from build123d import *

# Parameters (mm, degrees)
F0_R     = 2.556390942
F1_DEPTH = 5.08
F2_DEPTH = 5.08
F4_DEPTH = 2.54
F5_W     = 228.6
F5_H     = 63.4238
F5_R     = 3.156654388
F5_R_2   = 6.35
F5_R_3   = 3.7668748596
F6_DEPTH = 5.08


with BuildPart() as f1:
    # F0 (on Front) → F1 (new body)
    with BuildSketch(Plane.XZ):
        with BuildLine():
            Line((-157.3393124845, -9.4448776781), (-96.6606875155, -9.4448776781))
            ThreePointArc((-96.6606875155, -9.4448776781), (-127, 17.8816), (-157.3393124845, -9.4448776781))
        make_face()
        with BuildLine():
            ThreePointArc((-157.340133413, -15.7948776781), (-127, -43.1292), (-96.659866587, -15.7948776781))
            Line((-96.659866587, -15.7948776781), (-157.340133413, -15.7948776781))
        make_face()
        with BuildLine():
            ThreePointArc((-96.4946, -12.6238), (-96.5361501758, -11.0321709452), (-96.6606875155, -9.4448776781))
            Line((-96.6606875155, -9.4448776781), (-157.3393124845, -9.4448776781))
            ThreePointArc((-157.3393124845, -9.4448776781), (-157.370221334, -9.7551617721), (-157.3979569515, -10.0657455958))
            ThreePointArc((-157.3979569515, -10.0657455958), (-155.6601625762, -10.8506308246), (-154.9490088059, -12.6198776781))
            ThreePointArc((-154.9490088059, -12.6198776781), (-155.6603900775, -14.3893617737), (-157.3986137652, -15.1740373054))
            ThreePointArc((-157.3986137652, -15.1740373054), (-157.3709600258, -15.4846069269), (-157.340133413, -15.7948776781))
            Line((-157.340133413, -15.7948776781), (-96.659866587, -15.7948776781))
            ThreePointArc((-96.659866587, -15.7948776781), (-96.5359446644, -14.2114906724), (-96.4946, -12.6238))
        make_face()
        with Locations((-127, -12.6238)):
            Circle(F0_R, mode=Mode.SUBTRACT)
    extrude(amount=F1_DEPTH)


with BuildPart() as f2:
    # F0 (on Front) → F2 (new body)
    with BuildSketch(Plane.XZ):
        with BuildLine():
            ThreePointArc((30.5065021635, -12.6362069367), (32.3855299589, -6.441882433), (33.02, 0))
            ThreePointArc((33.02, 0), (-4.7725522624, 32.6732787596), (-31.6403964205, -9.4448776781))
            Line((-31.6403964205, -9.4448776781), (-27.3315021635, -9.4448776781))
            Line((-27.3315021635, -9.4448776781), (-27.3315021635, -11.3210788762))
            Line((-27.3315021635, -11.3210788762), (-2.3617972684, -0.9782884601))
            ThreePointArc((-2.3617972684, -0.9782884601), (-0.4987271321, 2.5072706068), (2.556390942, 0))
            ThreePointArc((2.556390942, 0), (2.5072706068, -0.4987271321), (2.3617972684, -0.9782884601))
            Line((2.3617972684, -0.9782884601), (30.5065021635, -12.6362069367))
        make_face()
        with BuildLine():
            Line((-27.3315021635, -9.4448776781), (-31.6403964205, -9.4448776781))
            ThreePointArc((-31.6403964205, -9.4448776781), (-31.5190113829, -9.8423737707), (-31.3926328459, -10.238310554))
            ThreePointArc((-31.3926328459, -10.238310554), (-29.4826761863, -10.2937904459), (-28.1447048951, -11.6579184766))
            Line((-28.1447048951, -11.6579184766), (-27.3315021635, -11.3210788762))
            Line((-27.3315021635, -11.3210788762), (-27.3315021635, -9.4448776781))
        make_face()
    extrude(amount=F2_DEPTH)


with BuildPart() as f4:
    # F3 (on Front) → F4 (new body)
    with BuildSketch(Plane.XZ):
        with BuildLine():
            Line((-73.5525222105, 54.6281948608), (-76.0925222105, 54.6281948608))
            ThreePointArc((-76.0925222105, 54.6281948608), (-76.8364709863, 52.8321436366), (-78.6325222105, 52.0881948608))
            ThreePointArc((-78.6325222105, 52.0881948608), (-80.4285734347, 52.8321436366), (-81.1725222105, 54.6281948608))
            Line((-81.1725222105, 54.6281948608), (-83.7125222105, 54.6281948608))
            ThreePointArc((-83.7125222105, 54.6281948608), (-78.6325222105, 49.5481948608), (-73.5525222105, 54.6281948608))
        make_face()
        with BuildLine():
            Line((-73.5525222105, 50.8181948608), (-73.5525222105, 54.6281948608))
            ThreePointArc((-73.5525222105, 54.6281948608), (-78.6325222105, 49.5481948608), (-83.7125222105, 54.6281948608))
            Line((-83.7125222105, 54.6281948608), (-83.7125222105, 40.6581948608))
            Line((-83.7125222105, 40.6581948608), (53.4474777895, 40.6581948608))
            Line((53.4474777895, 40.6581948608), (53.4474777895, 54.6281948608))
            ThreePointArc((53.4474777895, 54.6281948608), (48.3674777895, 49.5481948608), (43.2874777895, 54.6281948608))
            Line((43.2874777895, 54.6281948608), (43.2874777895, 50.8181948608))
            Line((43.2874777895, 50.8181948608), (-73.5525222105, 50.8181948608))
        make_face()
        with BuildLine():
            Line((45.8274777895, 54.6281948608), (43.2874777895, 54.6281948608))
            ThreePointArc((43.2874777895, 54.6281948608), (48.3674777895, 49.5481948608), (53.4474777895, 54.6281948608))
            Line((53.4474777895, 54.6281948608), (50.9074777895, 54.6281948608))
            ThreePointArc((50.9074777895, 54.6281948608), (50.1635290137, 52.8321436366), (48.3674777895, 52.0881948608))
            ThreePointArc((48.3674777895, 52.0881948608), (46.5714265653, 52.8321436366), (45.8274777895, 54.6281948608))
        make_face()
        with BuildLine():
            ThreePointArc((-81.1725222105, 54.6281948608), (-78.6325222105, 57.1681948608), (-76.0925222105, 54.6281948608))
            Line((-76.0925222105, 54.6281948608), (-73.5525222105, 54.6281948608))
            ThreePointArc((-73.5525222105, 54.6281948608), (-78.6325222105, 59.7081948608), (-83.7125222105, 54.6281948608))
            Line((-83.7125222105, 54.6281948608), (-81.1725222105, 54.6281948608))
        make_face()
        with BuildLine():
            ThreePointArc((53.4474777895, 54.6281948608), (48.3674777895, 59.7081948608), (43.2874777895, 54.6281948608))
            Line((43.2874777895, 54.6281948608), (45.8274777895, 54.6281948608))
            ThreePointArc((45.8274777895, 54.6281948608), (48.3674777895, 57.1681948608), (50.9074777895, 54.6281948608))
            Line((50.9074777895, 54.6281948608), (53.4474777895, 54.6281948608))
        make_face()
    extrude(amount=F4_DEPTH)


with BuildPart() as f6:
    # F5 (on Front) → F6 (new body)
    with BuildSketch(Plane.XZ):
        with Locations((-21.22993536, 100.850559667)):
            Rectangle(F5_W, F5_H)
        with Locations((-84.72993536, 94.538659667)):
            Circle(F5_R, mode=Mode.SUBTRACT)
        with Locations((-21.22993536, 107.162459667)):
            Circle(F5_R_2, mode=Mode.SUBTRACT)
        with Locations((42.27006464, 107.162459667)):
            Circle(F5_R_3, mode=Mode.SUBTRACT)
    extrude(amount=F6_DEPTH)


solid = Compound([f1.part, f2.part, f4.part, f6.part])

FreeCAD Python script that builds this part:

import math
import FreeCAD as App
import Part
import Sketcher
Q = App.Units.Quantity

doc = App.newDocument("Part")
body = doc.addObject("PartDesign::Body", "Body")

sketch1 = body.newObject("Sketcher::SketchObject", "Sketch")
sketch1.AttachmentSupport = (doc.getObject("XZ_Plane"), [""])
sketch1.MapMode = "FlatFace"
sketch1.addGeometry(Part.ArcOfCircle(Part.Circle(App.Vector(-127, -12.6, 0), App.Vector(0, 0, 1), 30.5), math.radians(0), math.radians(5.98)), False)
sketch1.addGeometry(Part.ArcOfCircle(Part.Circle(App.Vector(-127, -12.6, 0), App.Vector(0, 0, 1), 30.5), math.radians(6), math.radians(174)), False)
sketch1.addGeometry(Part.ArcOfCircle(Part.Circle(App.Vector(-127, -12.6, 0), App.Vector(0, 0, 1), 30.5), math.radians(174.02), math.radians(175.19)), False)
sketch1.addGeometry(Part.ArcOfCircle(Part.Circle(App.Vector(-157.5, -12.6, 0), App.Vector(0, 0, 1), 2.6), math.radians(0), math.radians(88)), False)
sketch1.addGeometry(Part.ArcOfCircle(Part.Circle(App.Vector(-157.5, -12.6, 0), App.Vector(0, 0, 1), 2.6), math.radians(-88), math.radians(0)), False)
sketch1.addGeometry(Part.ArcOfCircle(Part.Circle(App.Vector(-127, -12.6, 0), App.Vector(0, 0, 1), 30.5), math.radians(-175.2), math.radians(-174.03)), False)
sketch1.addGeometry(Part.ArcOfCircle(Part.Circle(App.Vector(-127, -12.6, 0), App.Vector(0, 0, 1), 30.5), math.radians(-174), math.radians(-6)), False)
sketch1.addGeometry(Part.ArcOfCircle(Part.Circle(App.Vector(-127, -12.6, 0), App.Vector(0, 0, 1), 30.5), math.radians(-5.97), math.radians(0)), False)
sketch1.addGeometry(Part.Circle(App.Vector(-127, -12.6, 0), App.Vector(0, 0, 1), 2.6), False)
sketch1.addConstraint(Sketcher.Constraint("Tangent", 0, 2, 1, 1))
sketch1.addConstraint(Sketcher.Constraint("Tangent", 1, 2, 2, 1))
sketch1.addConstraint(Sketcher.Constraint("Coincident", 2, 2, 3, 2))
sketch1.addConstraint(Sketcher.Constraint("Tangent", 3, 1, 4, 2))
sketch1.addConstraint(Sketcher.Constraint("Coincident", 4, 1, 5, 1))
sketch1.addConstraint(Sketcher.Constraint("Tangent", 5, 2, 6, 1))
sketch1.addConstraint(Sketcher.Constraint("Tangent", 6, 2, 7, 1))
sketch1.addConstraint(Sketcher.Constraint("Tangent", 7, 2, 0, 1))
sketch1.addConstraint(Sketcher.Constraint("Coincident", 2, 3, 0, 3))
sketch1.addConstraint(Sketcher.Constraint("Coincident", 5, 3, 0, 3))
sketch1.addConstraint(Sketcher.Constraint("Coincident", 8, 3, 0, 3))
sketch1.addConstraint(Sketcher.Constraint("Equal", 3, 4))
sketch1.addConstraint(Sketcher.Constraint("Equal", 2, 5))
sketch1.addConstraint(Sketcher.Constraint("Equal", 4, 8))
sketch1.addConstraint(Sketcher.Constraint("Horizontal", 0, 2, 1, 2))
sketch1.addConstraint(Sketcher.Constraint("Horizontal", 4, 3, 3, 1))
sketch1.addConstraint(Sketcher.Constraint("Horizontal", 5, 2, 6, 2))
sketch1.addConstraint(Sketcher.Constraint("Horizontal", 8, 3, 7, 2))
sketch1.addConstraint(Sketcher.Constraint("DistanceX", 0, 3, -1, 1, Q("5 in")))
sketch1.addConstraint(Sketcher.Constraint("Radius", 0, Q("1.201 in")))
sketch1.addConstraint(Sketcher.Constraint("DistanceY", 6, 2, 0, 2, Q("0.25 in")))
sketch1.addConstraint(Sketcher.Constraint("Diameter", 8, 5.112782))
sketch1.addConstraint(Sketcher.Constraint("DistanceY", 0, 3, -1, 1, Q("0.497 in")))
sketch1.addConstraint(Sketcher.Constraint("DistanceX", 3, 3, -1, 1, Q("6.201 in")))
sketch1.addConstraint(Sketcher.Constraint("DistanceY", 3, 3, 1, 2, Q("0.125 in")))
sketch1.addConstraint(Sketcher.Constraint("DistanceX", 4, 1, 1, 2, 0.059301))
pad1 = body.newObject("PartDesign::Pad", "Pad")
pad1.Profile = sketch1
pad1.Length = Q("0.2 in")
body2 = doc.addObject("PartDesign::Body", "Body001")

sketch2 = body2.newObject("Sketcher::SketchObject", "Sketch001")
sketch2.AttachmentSupport = (doc.getObject("XZ_Plane001"), [""])
sketch2.MapMode = "FlatFace"
sketch2.addGeometry(Part.ArcOfCircle(Part.Circle(App.Vector(0, 0, 0), App.Vector(0, 0, 1), 33), math.radians(-23), math.radians(0)), False)
sketch2.addGeometry(Part.ArcOfCircle(Part.Circle(App.Vector(0, 0, 0), App.Vector(0, 0, 1), 33), math.radians(0), math.radians(197)), False)
sketch2.addGeometry(Part.ArcOfCircle(Part.Circle(App.Vector(0, 0, 0), App.Vector(0, 0, 1), 33), math.radians(-163.38), math.radians(-161.94)), False)
sketch2.addGeometry(Part.ArcOfCircle(Part.Circle(App.Vector(-30.5, -12.6, 0), App.Vector(0, 0, 1), 2.6), math.radians(22), math.radians(110)), False)
sketch2.addGeometry(Part.LineSegment(App.Vector(-28.1, -11.7, 0), App.Vector(-27.3, -11.3, 0)), False)
sketch2.addGeometry(Part.LineSegment(App.Vector(-27.3, -11.3, 0), App.Vector(-2.4, -1, 0)), False)
sketch2.addGeometry(Part.ArcOfCircle(Part.Circle(App.Vector(0, 0, 0), App.Vector(0, 0, 1), 2.6), math.radians(0), math.radians(203)), False)
sketch2.addGeometry(Part.ArcOfCircle(Part.Circle(App.Vector(0, 0, 0), App.Vector(0, 0, 1), 2.6), math.radians(-23), math.radians(0)), False)
sketch2.addGeometry(Part.LineSegment(App.Vector(2.4, -1, 0), App.Vector(30.5, -12.6, 0)), False)
sketch2.addConstraint(Sketcher.Constraint("Tangent", 0, 2, 1, 1))
sketch2.addConstraint(Sketcher.Constraint("Tangent", 1, 2, 2, 1))
sketch2.addConstraint(Sketcher.Constraint("Coincident", 2, 2, 3, 2))
sketch2.addConstraint(Sketcher.Constraint("Coincident", 3, 1, 4, 1))
sketch2.addConstraint(Sketcher.Constraint("Coincident", 4, 2, 5, 1))
sketch2.addConstraint(Sketcher.Constraint("Coincident", 5, 2, 6, 2))
sketch2.addConstraint(Sketcher.Constraint("Tangent", 6, 1, 7, 2))
sketch2.addConstraint(Sketcher.Constraint("Coincident", 7, 1, 8, 1))
sketch2.addConstraint(Sketcher.Constraint("Coincident", 8, 2, 0, 1))
sketch2.addConstraint(Sketcher.Constraint("Coincident", 0, 3, -1, 1))
sketch2.addConstraint(Sketcher.Constraint("Coincident", 2, 3, -1, 1))
sketch2.addConstraint(Sketcher.Constraint("Coincident", 6, 3, -1, 1))
sketch2.addConstraint(Sketcher.Constraint("Equal", 3, 6))
sketch2.addConstraint(Sketcher.Constraint("Equal", 6, 7))
sketch2.addConstraint(Sketcher.Constraint("PointOnObject", 0, 2, -1))
sketch2.addConstraint(Sketcher.Constraint("PointOnObject", 6, 1, -1))
sketch2.addConstraint(Sketcher.Constraint("Parallel", 4, 5))
sketch2.addConstraint(Sketcher.Constraint("Horizontal", 5, 2, 7, 1))
sketch2.addConstraint(Sketcher.Constraint("Horizontal", 3, 3, 8, 2))
sketch2.addConstraint(Sketcher.Constraint("Radius", 0, Q("1.3 in")))
sketch2.addConstraint(Sketcher.Constraint("Angle", 4, Q("22.5 deg")))
sketch2.addConstraint(Sketcher.Constraint("Angle", 8, Q("-22.5 deg")))
sketch2.addConstraint(Sketcher.Constraint("Radius", 3, 2.556391))
sketch2.addConstraint(Sketcher.Constraint("DistanceX", 3, 3, 4, 2, Q("0.125 in")))
sketch2.addConstraint(Sketcher.Constraint("DistanceY", 4, 2, 1, 2, 1.876201))
sketch2.addConstraint(Sketcher.Constraint("DistanceX", 2, 3, 8, 2, 30.506502))
sketch2.addConstraint(Sketcher.Constraint("DistanceY", 2, 2, -1, 1, 10.238311))
pad2 = body2.newObject("PartDesign::Pad", "Pad001")
pad2.Profile = sketch2
pad2.Length = Q("0.2 in")
body3 = doc.addObject("PartDesign::Body", "Body002")

sketch3 = body3.newObject("Sketcher::SketchObject", "Sketch002")
sketch3.AttachmentSupport = (doc.getObject("XZ_Plane002"), [""])
sketch3.MapMode = "FlatFace"
sketch3.addGeometry(Part.LineSegment(App.Vector(-83.7, 54.6, 0), App.Vector(-83.7, 40.7, 0)), False)
sketch3.addGeometry(Part.LineSegment(App.Vector(-83.7, 40.7, 0), App.Vector(53.4, 40.7, 0)), False)
sketch3.addGeometry(Part.LineSegment(App.Vector(53.4, 40.7, 0), App.Vector(53.4, 54.6, 0)), False)
sketch3.addGeometry(Part.ArcOfCircle(Part.Circle(App.Vector(48.4, 54.6, 0), App.Vector(0, 0, 1), 5.1), math.radians(0), math.radians(180)), False)
sketch3.addGeometry(Part.LineSegment(App.Vector(43.3, 54.6, 0), App.Vector(43.3, 50.8, 0)), False)
sketch3.addGeometry(Part.LineSegment(App.Vector(43.3, 50.8, 0), App.Vector(-73.6, 50.8, 0)), False)
sketch3.addGeometry(Part.LineSegment(App.Vector(-73.6, 50.8, 0), App.Vector(-73.6, 54.6, 0)), False)
sketch3.addGeometry(Part.ArcOfCircle(Part.Circle(App.Vector(-78.6, 54.6, 0), App.Vector(0, 0, 1), 5.1), math.radians(0), math.radians(180)), False)
sketch3.addGeometry(Part.ArcOfCircle(Part.Circle(App.Vector(48.4, 54.6, 0), App.Vector(0, 0, 1), 2.5), math.radians(-90), math.radians(0)), False)
sketch3.addGeometry(Part.ArcOfCircle(Part.Circle(App.Vector(48.4, 54.6, 0), App.Vector(0, 0, 1), 2.5), math.radians(180), math.radians(270)), False)
sketch3.addGeometry(Part.ArcOfCircle(Part.Circle(App.Vector(48.4, 54.6, 0), App.Vector(0, 0, 1), 2.5), math.radians(0), math.radians(180)), False)
sketch3.addGeometry(Part.ArcOfCircle(Part.Circle(App.Vector(-78.6, 54.6, 0), App.Vector(0, 0, 1), 2.5), math.radians(-90), math.radians(0)), False)
sketch3.addGeometry(Part.ArcOfCircle(Part.Circle(App.Vector(-78.6, 54.6, 0), App.Vector(0, 0, 1), 2.5), math.radians(180), math.radians(270)), False)
sketch3.addGeometry(Part.ArcOfCircle(Part.Circle(App.Vector(-78.6, 54.6, 0), App.Vector(0, 0, 1), 2.5), math.radians(0), math.radians(180)), False)
sketch3.addConstraint(Sketcher.Constraint("Coincident", 0, 2, 1, 1))
sketch3.addConstraint(Sketcher.Constraint("Coincident", 1, 2, 2, 1))
sketch3.addConstraint(Sketcher.Constraint("Tangent", 2, 2, 3, 1))
sketch3.addConstraint(Sketcher.Constraint("Tangent", 3, 2, 4, 1))
sketch3.addConstraint(Sketcher.Constraint("Coincident", 4, 2, 5, 1))
sketch3.addConstraint(Sketcher.Constraint("Coincident", 5, 2, 6, 1))
sketch3.addConstraint(Sketcher.Constraint("Tangent", 6, 2, 7, 1))
sketch3.addConstraint(Sketcher.Constraint("Tangent", 7, 2, 0, 1))
sketch3.addConstraint(Sketcher.Constraint("Tangent", 8, 1, 9, 2))
sketch3.addConstraint(Sketcher.Constraint("Tangent", 9, 1, 10, 2))
sketch3.addConstraint(Sketcher.Constraint("Tangent", 10, 1, 8, 2))
sketch3.addConstraint(Sketcher.Constraint("Tangent", 11, 1, 12, 2))
sketch3.addConstraint(Sketcher.Constraint("Tangent", 12, 1, 13, 2))
sketch3.addConstraint(Sketcher.Constraint("Tangent", 13, 1, 11, 2))
sketch3.addConstraint(Sketcher.Constraint("Vertical", 0))
sketch3.addConstraint(Sketcher.Constraint("Horizontal", 1))
sketch3.addConstraint(Sketcher.Constraint("Vertical", 2))
sketch3.addConstraint(Sketcher.Constraint("Vertical", 4))
sketch3.addConstraint(Sketcher.Constraint("Horizontal", 5))
sketch3.addConstraint(Sketcher.Constraint("Vertical", 6))
sketch3.addConstraint(Sketcher.Constraint("Coincident", 8, 3, 3, 3))
sketch3.addConstraint(Sketcher.Constraint("Coincident", 11, 3, 7, 3))
sketch3.addConstraint(Sketcher.Constraint("Equal", 3, 7))
sketch3.addConstraint(Sketcher.Constraint("Equal", 10, 11))
sketch3.addConstraint(Sketcher.Constraint("Horizontal", 3, 3, 7, 3))
sketch3.addConstraint(Sketcher.Constraint("Horizontal", 7, 2, 9, 1))
sketch3.addConstraint(Sketcher.Constraint("Horizontal", 9, 1, 10, 1))
sketch3.addConstraint(Sketcher.Constraint("Horizontal", 10, 1, 12, 1))
sketch3.addConstraint(Sketcher.Constraint("Horizontal", 12, 1, 13, 1))
sketch3.addConstraint(Sketcher.Constraint("Vertical", 10, 3, 8, 1))
sketch3.addConstraint(Sketcher.Constraint("Vertical", 13, 3, 11, 1))
sketch3.addConstraint(Sketcher.Constraint("Radius", 3, Q("0.2 in")))
sketch3.addConstraint(Sketcher.Constraint("Radius", 8, Q("0.1 in")))
sketch3.addConstraint(Sketcher.Constraint("DistanceX", 1, 1, 1, 2, Q("5.4 in")))
sketch3.addConstraint(Sketcher.Constraint("DistanceY", 0, 2, 0, 1, Q("0.55 in")))
sketch3.addConstraint(Sketcher.Constraint("DistanceY", 4, 2, 4, 1, Q("0.15 in")))
sketch3.addConstraint(Sketcher.Constraint("DistanceX", -1, 1, 3, 3, 48.367478))
sketch3.addConstraint(Sketcher.Constraint("DistanceY", -1, 1, 3, 3, 54.628195))
pad3 = body3.newObject("PartDesign::Pad", "Pad002")
pad3.Profile = sketch3
pad3.Length = Q("0.1 in")
body4 = doc.addObject("PartDesign::Body", "Body003")

sketch4 = body4.newObject("Sketcher::SketchObject", "Sketch003")
sketch4.AttachmentSupport = (doc.getObject("XZ_Plane003"), [""])
sketch4.MapMode = "FlatFace"
sketch4.addGeometry(Part.LineSegment(App.Vector(-135.5, 132.6, 0), App.Vector(-135.5, 69.1, 0)), False)
sketch4.addGeometry(Part.LineSegment(App.Vector(-135.5, 69.1, 0), App.Vector(93.1, 69.1, 0)), False)
sketch4.addGeometry(Part.LineSegment(App.Vector(93.1, 69.1, 0), App.Vector(93.1, 132.6, 0)), False)
sketch4.addGeometry(Part.LineSegment(App.Vector(93.1, 132.6, 0), App.Vector(-135.5, 132.6, 0)), False)
sketch4.addGeometry(Part.Circle(App.Vector(-84.7, 94.5, 0), App.Vector(0, 0, 1), 3.2), False)
sketch4.addGeometry(Part.Circle(App.Vector(-21.2, 107.2, 0), App.Vector(0, 0, 1), 6.3), False)
sketch4.addGeometry(Part.Circle(App.Vector(42.3, 107.2, 0), App.Vector(0, 0, 1), 3.8), False)
sketch4.addConstraint(Sketcher.Constraint("Coincident", 0, 2, 1, 1))
sketch4.addConstraint(Sketcher.Constraint("Coincident", 1, 2, 2, 1))
sketch4.addConstraint(Sketcher.Constraint("Coincident", 2, 2, 3, 1))
sketch4.addConstraint(Sketcher.Constraint("Coincident", 3, 2, 0, 1))
sketch4.addConstraint(Sketcher.Constraint("Vertical", 0))
sketch4.addConstraint(Sketcher.Constraint("Horizontal", 1))
sketch4.addConstraint(Sketcher.Constraint("Vertical", 2))
sketch4.addConstraint(Sketcher.Constraint("Horizontal", 3))
sketch4.addConstraint(Sketcher.Constraint("Horizontal", 5, 3, 6, 3))
sketch4.addConstraint(Sketcher.Constraint("Diameter", 5, Q("0.5 in")))
sketch4.addConstraint(Sketcher.Constraint("DistanceX", 1, 1, 1, 2, Q("9 in")))
sketch4.addConstraint(Sketcher.Constraint("DistanceX", 4, 3, 6, 3, Q("5 in")))
sketch4.addConstraint(Sketcher.Constraint("DistanceX", 0, 2, 4, 3, Q("2 in")))
sketch4.addConstraint(Sketcher.Constraint("DistanceY", 0, 2, 4, 3, Q("1 in")))
sketch4.addConstraint(Sketcher.Constraint("DistanceY", 6, 3, 2, 2, Q("1 in")))
sketch4.addConstraint(Sketcher.Constraint("DistanceX", 4, 3, 5, 3, Q("2.5 in")))
sketch4.addConstraint(Sketcher.Constraint("DistanceY", 0, 2, 0, 1, Q("2.497 in")))
sketch4.addConstraint(Sketcher.Constraint("Diameter", 4, 6.313309))
sketch4.addConstraint(Sketcher.Constraint("Diameter", 6, 7.53375))
sketch4.addConstraint(Sketcher.Constraint("DistanceY", -1, 1, 4, 3, 94.53866))
sketch4.addConstraint(Sketcher.Constraint("DistanceX", 4, 3, -1, 1, 84.729935))
pad4 = body4.newObject("PartDesign::Pad", "Pad003")
pad4.Profile = sketch4
pad4.Length = Q("0.2 in")

doc.recompute()
